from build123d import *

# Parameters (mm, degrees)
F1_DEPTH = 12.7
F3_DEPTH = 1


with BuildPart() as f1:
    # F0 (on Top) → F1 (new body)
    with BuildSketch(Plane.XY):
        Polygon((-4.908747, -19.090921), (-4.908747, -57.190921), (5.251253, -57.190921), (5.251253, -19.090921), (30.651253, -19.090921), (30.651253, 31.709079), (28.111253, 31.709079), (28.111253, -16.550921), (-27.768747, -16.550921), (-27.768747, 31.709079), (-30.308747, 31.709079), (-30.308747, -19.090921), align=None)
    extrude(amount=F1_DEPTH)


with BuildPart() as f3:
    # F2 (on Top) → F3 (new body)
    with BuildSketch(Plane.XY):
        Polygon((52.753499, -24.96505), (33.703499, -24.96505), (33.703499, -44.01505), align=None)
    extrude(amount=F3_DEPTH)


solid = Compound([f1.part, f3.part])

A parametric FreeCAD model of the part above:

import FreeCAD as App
import Part
import Sketcher

V = App.Vector
Q = App.Units.Quantity


def add_polygon(sketch, points):
    """Adds a closed chain of lines whose ends are joined by coincident constraints."""
    first, n = sketch.GeometryCount, len(points)
    for a, b in zip(points, points[1:] + points[:1]):
        sketch.addGeometry(Part.LineSegment(App.Vector(*a, 0), App.Vector(*b, 0)), False)
    for i in range(n):
        sketch.addConstraint(Sketcher.Constraint("Coincident", first + i, 2, first + (i + 1) % n, 1))

doc = App.newDocument("Part")
body = doc.addObject("PartDesign::Body", "Body")

# Sketch on XY plane
sketch1 = doc.addObject("Sketcher::SketchObject", "Sketch")
body.addObject(sketch1)
sketch1.AttachmentSupport = (doc.XY_Plane, [""])
sketch1.MapMode = "FlatFace"
add_polygon(sketch1, [(-4.908747, -19.090921), (-4.908747, -57.190921), (5.251253, -57.190921), (5.251253, -19.090921), (30.651253, -19.090921), (30.651253, 31.709079), (28.111253, 31.709079), (28.111253, -16.550921), (-27.768747, -16.550921), (-27.768747, 31.709079), (-30.308747, 31.709079), (-30.308747, -19.090921)])  # lines 0-11
sketch1.addConstraint([
    Sketcher.Constraint("Vertical", 0),
    Sketcher.Constraint("Horizontal", 1),
    Sketcher.Constraint("Vertical", 2),
    Sketcher.Constraint("Horizontal", 3),
    Sketcher.Constraint("Vertical", 4),
    Sketcher.Constraint("Horizontal", 5),
    Sketcher.Constraint("Vertical", 6),
    Sketcher.Constraint("Horizontal", 7),
    Sketcher.Constraint("Vertical", 8),
    Sketcher.Constraint("Horizontal", 9),
    Sketcher.Constraint("Vertical", 10),
    Sketcher.Constraint("Horizontal", 11),
    Sketcher.Constraint("Horizontal", 5, 2, 8, 2),
    Sketcher.Constraint("Horizontal", 3, 2, 10, 2),
    Sketcher.Constraint("Equal", 5, 9),
    Sketcher.Constraint("Equal", 3, 11),
    Sketcher.Constraint("DistanceX", 3, 1, 3, 2, Q("1 in")),
    Sketcher.Constraint("DistanceY", 4, 1, 4, 2, Q("2 in")),
    Sketcher.Constraint("DistanceX", 1, 1, 1, 2, Q("0.4 in")),
    Sketcher.Constraint("DistanceX", 5, 2, 5, 1, Q("0.1 in")),
    Sketcher.Constraint("DistanceY", 0, 2, 0, 1, Q("1.5 in")),
    Sketcher.Constraint("DistanceY", 6, 2, 6, 1, Q("1.9 in")),
    Sketcher.Constraint("DistanceY", 0, 2, -1, 1, Q("57.190921 mm")),
    Sketcher.Constraint("DistanceX", 0, 2, -1, 1, Q("4.908747 mm")),
])
pad1 = doc.addObject("PartDesign::Pad", "Pad")
body.addObject(pad1)
pad1.Profile = sketch1
pad1.Length = Q("0.5 in")
body2 = doc.addObject("PartDesign::Body", "Body001")

# Sketch on XY plane
sketch2 = doc.addObject("Sketcher::SketchObject", "Sketch001")
body2.addObject(sketch2)
sketch2.AttachmentSupport = (doc.getObject("XY_Plane001"), [""])
sketch2.MapMode = "FlatFace"
add_polygon(sketch2, [(52.753499, -24.96505), (33.703499, -24.96505), (33.703499, -44.01505)])  # lines 0-2
sketch2.addConstraint([
    Sketcher.Constraint("Horizontal", 0),
    Sketcher.Constraint("Vertical", 1),
    Sketcher.Constraint("Equal", 0, 1),
    Sketcher.Constraint("DistanceX", 0, 2, 0, 1, Q("0.75 in")),
    Sketcher.Constraint("DistanceX", -1, 1, 0, 2, Q("33.703499 mm")),
    Sketcher.Constraint("DistanceY", 0, 2, -1, 1, Q("24.96505 mm")),
])
pad2 = doc.addObject("PartDesign::Pad", "Pad001")
body2.addObject(pad2)
pad2.Profile = sketch2
pad2.Length = 1

doc.recompute()
